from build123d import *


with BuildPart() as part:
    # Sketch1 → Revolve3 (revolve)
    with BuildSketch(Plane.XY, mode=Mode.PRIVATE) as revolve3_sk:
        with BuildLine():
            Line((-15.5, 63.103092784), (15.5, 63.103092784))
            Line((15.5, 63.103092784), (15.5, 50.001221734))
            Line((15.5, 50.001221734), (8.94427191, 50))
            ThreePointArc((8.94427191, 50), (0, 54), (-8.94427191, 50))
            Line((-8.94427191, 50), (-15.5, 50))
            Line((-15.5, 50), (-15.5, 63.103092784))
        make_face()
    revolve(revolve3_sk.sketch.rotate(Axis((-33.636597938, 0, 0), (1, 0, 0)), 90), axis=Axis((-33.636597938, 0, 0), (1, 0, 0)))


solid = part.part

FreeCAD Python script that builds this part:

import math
import FreeCAD as App
import Part
import Sketcher

V = App.Vector
Q = App.Units.Quantity

doc = App.newDocument("Part")
params = doc.addObject("Spreadsheet::Sheet", "Params")
for row, (alias, value) in enumerate([
    ("sketch1_radius", "12 mm"),
    ("sketch1_width", "31 mm"),
    ("revolution_angle", "360 deg"),
], start=1):
    params.set(f"A{row}", alias)
    params.set(f"B{row}", "=" + value)
    params.setAlias(f"B{row}", alias)

body = doc.addObject("PartDesign::Body", "Body")

# Sketch on XY plane
sketch1 = doc.addObject("Sketcher::SketchObject", "Sketch")
body.addObject(sketch1)
sketch1.AttachmentSupport = (doc.XY_Plane, [""])
sketch1.MapMode = "FlatFace"
sketch1.addGeometry([
    Part.LineSegment(V(16, 63, 0), V(-16, 63, 0)),  # 0
    Part.LineSegment(V(-16, 63, 0), V(-16, 50, 0)),  # 1
    Part.LineSegment(V(-16, 50, 0), V(-9, 50, 0)),  # 2
    Part.ArcOfCircle(Part.Circle(V(0, 42, 0), V(0, 0, 1), 12), math.radians(42), math.radians(138)),  # 3
    Part.LineSegment(V(9, 50, 0), V(16, 50, 0)),  # 4
    Part.LineSegment(V(16, 50, 0), V(16, 63, 0)),  # 5
], False)
sketch1.addConstraint([
    Sketcher.Constraint("Coincident", 0, 2, 1, 1),
    Sketcher.Constraint("Coincident", 1, 2, 2, 1),
    Sketcher.Constraint("Coincident", 2, 2, 3, 2),
    Sketcher.Constraint("Coincident", 3, 1, 4, 1),
    Sketcher.Constraint("Coincident", 4, 2, 5, 1),
    Sketcher.Constraint("Coincident", 5, 2, 0, 1),
    Sketcher.Constraint("Horizontal", 0),
    Sketcher.Constraint("Vertical", 1),
    Sketcher.Constraint("Horizontal", 2),
    Sketcher.Constraint("Vertical", 5),
    Sketcher.Constraint("Symmetric", 2, 2, 3, 1, -2),
    Sketcher.Constraint("Radius", 3, Q("12 mm")),
    Sketcher.Constraint("DistanceX", 0, 2, 0, 1, Q("31 mm")),
    Sketcher.Constraint("DistanceY", -1, 1, 3, 3, Q("42 mm")),
    Sketcher.Constraint("DistanceY", -1, 1, 1, 2, Q("50 mm")),
    Sketcher.Constraint("DistanceX", 0, 2, -1, 1, Q("15.5 mm")),
    Sketcher.Constraint("DistanceY", 5, 1, 5, 2, Q("13.101871 mm")),
    Sketcher.Constraint("DistanceY", 1, 2, 1, 1, Q("13.103093 mm")),
])
sketch1.setExpression("Constraints[11]", "Params.sketch1_radius")
sketch1.setExpression("Constraints[12]", "Params.sketch1_width")
revolution = doc.addObject("PartDesign::Revolution", "Revolution")
body.addObject(revolution)
revolution.Profile = sketch1
revolution.ReferenceAxis = (sketch1, ["H_Axis"])
revolution.setExpression("Angle", "Params.revolution_angle")

doc.recompute()
